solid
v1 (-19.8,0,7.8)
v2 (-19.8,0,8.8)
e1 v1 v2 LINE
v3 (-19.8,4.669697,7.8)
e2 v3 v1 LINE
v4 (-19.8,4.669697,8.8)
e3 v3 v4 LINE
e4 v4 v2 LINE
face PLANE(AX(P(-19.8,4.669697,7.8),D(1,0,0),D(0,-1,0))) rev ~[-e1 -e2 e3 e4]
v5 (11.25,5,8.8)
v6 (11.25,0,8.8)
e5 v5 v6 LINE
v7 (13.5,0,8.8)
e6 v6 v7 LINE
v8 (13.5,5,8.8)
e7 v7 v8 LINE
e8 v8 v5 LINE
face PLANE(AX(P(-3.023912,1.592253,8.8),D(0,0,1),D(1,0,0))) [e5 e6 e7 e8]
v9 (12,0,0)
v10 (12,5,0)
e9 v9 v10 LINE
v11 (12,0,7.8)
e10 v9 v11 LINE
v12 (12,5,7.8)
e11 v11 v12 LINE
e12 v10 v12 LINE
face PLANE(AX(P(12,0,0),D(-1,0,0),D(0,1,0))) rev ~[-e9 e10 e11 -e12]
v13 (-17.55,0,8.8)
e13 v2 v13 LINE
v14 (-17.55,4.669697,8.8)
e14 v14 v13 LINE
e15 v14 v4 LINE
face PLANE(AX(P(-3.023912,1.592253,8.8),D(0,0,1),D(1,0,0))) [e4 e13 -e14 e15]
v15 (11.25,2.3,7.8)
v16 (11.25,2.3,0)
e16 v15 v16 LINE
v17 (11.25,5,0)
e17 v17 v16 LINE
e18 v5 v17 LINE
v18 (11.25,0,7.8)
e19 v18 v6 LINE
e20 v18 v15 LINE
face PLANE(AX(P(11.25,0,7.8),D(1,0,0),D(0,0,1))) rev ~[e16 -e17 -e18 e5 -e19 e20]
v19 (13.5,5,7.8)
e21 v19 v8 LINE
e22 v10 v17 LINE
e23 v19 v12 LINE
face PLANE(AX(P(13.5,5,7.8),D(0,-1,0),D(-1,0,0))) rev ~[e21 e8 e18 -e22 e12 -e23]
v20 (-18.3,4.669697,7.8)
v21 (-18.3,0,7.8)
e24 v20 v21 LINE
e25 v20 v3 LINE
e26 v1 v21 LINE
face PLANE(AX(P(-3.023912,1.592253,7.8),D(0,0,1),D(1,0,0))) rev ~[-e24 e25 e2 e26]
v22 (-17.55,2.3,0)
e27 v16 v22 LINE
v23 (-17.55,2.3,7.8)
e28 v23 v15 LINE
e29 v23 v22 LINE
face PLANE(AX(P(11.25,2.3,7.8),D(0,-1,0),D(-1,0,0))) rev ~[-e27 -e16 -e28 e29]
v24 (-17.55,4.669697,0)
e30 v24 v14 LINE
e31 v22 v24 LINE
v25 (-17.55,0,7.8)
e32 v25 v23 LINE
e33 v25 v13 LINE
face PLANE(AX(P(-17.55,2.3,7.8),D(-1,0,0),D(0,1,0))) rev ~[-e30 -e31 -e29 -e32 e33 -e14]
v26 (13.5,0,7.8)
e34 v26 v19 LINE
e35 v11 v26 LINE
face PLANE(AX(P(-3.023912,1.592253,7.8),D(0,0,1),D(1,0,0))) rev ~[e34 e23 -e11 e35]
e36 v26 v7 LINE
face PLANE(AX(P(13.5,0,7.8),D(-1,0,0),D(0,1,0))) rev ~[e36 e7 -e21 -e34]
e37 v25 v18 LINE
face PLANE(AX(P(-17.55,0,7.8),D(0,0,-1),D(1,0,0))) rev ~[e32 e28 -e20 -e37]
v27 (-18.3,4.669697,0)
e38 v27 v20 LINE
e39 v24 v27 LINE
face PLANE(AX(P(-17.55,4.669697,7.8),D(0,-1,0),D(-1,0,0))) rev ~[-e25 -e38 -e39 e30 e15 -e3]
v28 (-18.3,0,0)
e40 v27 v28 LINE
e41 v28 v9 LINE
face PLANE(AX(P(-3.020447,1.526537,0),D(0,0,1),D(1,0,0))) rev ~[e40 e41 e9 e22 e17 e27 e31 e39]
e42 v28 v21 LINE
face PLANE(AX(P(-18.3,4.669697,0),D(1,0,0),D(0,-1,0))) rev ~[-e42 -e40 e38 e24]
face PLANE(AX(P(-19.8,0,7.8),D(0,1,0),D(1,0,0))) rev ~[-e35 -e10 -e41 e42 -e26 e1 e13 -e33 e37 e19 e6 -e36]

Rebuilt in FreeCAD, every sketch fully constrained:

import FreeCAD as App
import Part
import Sketcher

doc = App.newDocument("Part")
body = doc.addObject("PartDesign::Body", "Body")

# Sketch on XY plane
sketch1 = body.newObject("Sketcher::SketchObject", "Sketch")
sketch1.AttachmentSupport = (doc.getObject("XY_Plane"), [""])
sketch1.MapMode = "FlatFace"
sketch1.addGeometry([
    Part.LineSegment(App.Vector(-18.3, 4.7, 0), App.Vector(-18.3, 0, 0)),  # 0
    Part.LineSegment(App.Vector(-18.3, 0, 0), App.Vector(12, 0, 0)),  # 1
    Part.LineSegment(App.Vector(12, 0, 0), App.Vector(12, 5, 0)),  # 2
    Part.LineSegment(App.Vector(12, 5, 0), App.Vector(11.2, 5, 0)),  # 3
    Part.LineSegment(App.Vector(11.2, 5, 0), App.Vector(11.2, 2.3, 0)),  # 4
    Part.LineSegment(App.Vector(11.2, 2.3, 0), App.Vector(-17.6, 2.3, 0)),  # 5
    Part.LineSegment(App.Vector(-17.6, 2.3, 0), App.Vector(-17.6, 4.7, 0)),  # 6
    Part.LineSegment(App.Vector(-17.6, 4.7, 0), App.Vector(-18.3, 4.7, 0)),  # 7
], False)
sketch1.addConstraint([
    Sketcher.Constraint("Coincident", 0, 2, 1, 1),
    Sketcher.Constraint("Coincident", 1, 2, 2, 1),
    Sketcher.Constraint("Coincident", 2, 2, 3, 1),
    Sketcher.Constraint("Coincident", 3, 2, 4, 1),
    Sketcher.Constraint("Coincident", 4, 2, 5, 1),
    Sketcher.Constraint("Coincident", 5, 2, 6, 1),
    Sketcher.Constraint("Coincident", 6, 2, 7, 1),
    Sketcher.Constraint("Coincident", 7, 2, 0, 1),
    Sketcher.Constraint("Vertical", 0),
    Sketcher.Constraint("Horizontal", 1),
    Sketcher.Constraint("Vertical", 2),
    Sketcher.Constraint("Horizontal", 3),
    Sketcher.Constraint("Vertical", 4),
    Sketcher.Constraint("Horizontal", 5),
    Sketcher.Constraint("Vertical", 6),
    Sketcher.Constraint("Horizontal", 7),
    Sketcher.Constraint("PointOnObject", 0, 2, -1),
    Sketcher.Constraint("Equal", 3, 7),
    Sketcher.Constraint("DistanceY", 2, 1, 2, 2, 5.0),
    Sketcher.Constraint("DistanceX", 1, 1, 1, 2, 30.3),
    Sketcher.Constraint("DistanceX", 5, 2, 5, 1, 28.8),
    Sketcher.Constraint("DistanceY", 4, 2, 4, 1, 2.7),
    Sketcher.Constraint("DistanceX", -1, 1, 1, 2, 12.0),
    Sketcher.Constraint("DistanceY", 0, 2, 0, 1, 4.669697),
])
pad1 = body.newObject("PartDesign::Pad", "Pad")
pad1.Profile = sketch1
pad1.Length = 7.8

# Sketch on XY plane
sketch2 = body.newObject("Sketcher::SketchObject", "Sketch001")
sketch2.AttachmentSupport = (doc.getObject("XY_Plane"), [""])
sketch2.MapMode = "FlatFace"
sketch2.AttachmentOffset = App.Placement(App.Vector(0, 0, 7.8), App.Rotation())
sketch2.addGeometry([
    Part.LineSegment(App.Vector(-17.6, 2.3, 0), App.Vector(-17.6, 4.7, 0)),  # 0
    Part.LineSegment(App.Vector(-17.6, 4.7, 0), App.Vector(-19.8, 4.7, 0)),  # 1
    Part.LineSegment(App.Vector(-19.8, 4.7, 0), App.Vector(-19.8, 0, 0)),  # 2
    Part.LineSegment(App.Vector(-19.8, 0, 0), App.Vector(13.5, 0, 0)),  # 3
    Part.LineSegment(App.Vector(13.5, 0, 0), App.Vector(13.5, 5, 0)),  # 4
    Part.LineSegment(App.Vector(13.5, 5, 0), App.Vector(11.2, 5, 0)),  # 5
    Part.LineSegment(App.Vector(11.2, 5, 0), App.Vector(11.2, 2.3, 0)),  # 6
    Part.LineSegment(App.Vector(11.2, 2.3, 0), App.Vector(-17.6, 2.3, 0)),  # 7
], False)
sketch2.addConstraint([
    Sketcher.Constraint("Coincident", 0, 2, 1, 1),
    Sketcher.Constraint("Coincident", 1, 2, 2, 1),
    Sketcher.Constraint("Coincident", 2, 2, 3, 1),
    Sketcher.Constraint("Coincident", 3, 2, 4, 1),
    Sketcher.Constraint("Coincident", 4, 2, 5, 1),
    Sketcher.Constraint("Coincident", 5, 2, 6, 1),
    Sketcher.Constraint("Coincident", 6, 2, 7, 1),
    Sketcher.Constraint("Coincident", 7, 2, 0, 1),
    Sketcher.Constraint("Vertical", 0),
    Sketcher.Constraint("Horizontal", 1),
    Sketcher.Constraint("Vertical", 2),
    Sketcher.Constraint("Horizontal", 3),
    Sketcher.Constraint("Vertical", 4),
    Sketcher.Constraint("Horizontal", 5),
    Sketcher.Constraint("Vertical", 6),
    Sketcher.Constraint("Horizontal", 7),
    Sketcher.Constraint("PointOnObject", 2, 2, -1),
    Sketcher.Constraint("Equal", 1, 5),
    Sketcher.Constraint("DistanceY", 4, 1, 4, 2, 5.0),
    Sketcher.Constraint("DistanceX", 3, 1, 3, 2, 33.3),
    Sketcher.Constraint("DistanceX", 7, 2, 7, 1, 28.8),
    Sketcher.Constraint("DistanceY", 6, 2, 6, 1, 2.7),
    Sketcher.Constraint("DistanceX", 1, 2, -1, 1, 19.8),
    Sketcher.Constraint("DistanceY", 0, 1, 0, 2, 2.369697),
])
pad2 = body.newObject("PartDesign::Pad", "Pad001")
pad2.Profile = sketch2
pad2.Length = 1

# Sketch on XZ plane
sketch3 = body.newObject("Sketcher::SketchObject", "Sketch002")
sketch3.AttachmentSupport = (doc.getObject("XZ_Plane"), [""])
sketch3.MapMode = "FlatFace"
sketch3.addGeometry([
    Part.LineSegment(App.Vector(-17.6, 8.8, 0), App.Vector(-17.6, 7.8, 0)),
    Part.LineSegment(App.Vector(-17.6, 7.8, 0), App.Vector(11.2, 7.8, 0)),
    Part.LineSegment(App.Vector(11.2, 7.8, 0), App.Vector(11.2, 8.8, 0)),
    Part.LineSegment(App.Vector(11.2, 8.8, 0), App.Vector(-17.6, 8.8, 0)),
], False)
sketch3.addConstraint([
    Sketcher.Constraint("Coincident", 0, 2, 1, 1),
    Sketcher.Constraint("Coincident", 1, 2, 2, 1),
    Sketcher.Constraint("Coincident", 2, 2, 3, 1),
    Sketcher.Constraint("Coincident", 3, 2, 0, 1),
    Sketcher.Constraint("Vertical", 0),
    Sketcher.Constraint("Horizontal", 1),
    Sketcher.Constraint("Vertical", 2),
    Sketcher.Constraint("Horizontal", 3),
    Sketcher.Constraint("DistanceY", 0, 2, 0, 1, 1.0),
    Sketcher.Constraint("DistanceX", 1, 1, 1, 2, 28.8),
    Sketcher.Constraint("DistanceY", -1, 1, 0, 2, 7.8),
    Sketcher.Constraint("DistanceX", 0, 2, -1, 1, 17.55),
])
pocket1 = body.newObject("PartDesign::Pocket", "Pocket")
pocket1.Profile = sketch3
pocket1.Type = "ThroughAll"

doc.recompute()
